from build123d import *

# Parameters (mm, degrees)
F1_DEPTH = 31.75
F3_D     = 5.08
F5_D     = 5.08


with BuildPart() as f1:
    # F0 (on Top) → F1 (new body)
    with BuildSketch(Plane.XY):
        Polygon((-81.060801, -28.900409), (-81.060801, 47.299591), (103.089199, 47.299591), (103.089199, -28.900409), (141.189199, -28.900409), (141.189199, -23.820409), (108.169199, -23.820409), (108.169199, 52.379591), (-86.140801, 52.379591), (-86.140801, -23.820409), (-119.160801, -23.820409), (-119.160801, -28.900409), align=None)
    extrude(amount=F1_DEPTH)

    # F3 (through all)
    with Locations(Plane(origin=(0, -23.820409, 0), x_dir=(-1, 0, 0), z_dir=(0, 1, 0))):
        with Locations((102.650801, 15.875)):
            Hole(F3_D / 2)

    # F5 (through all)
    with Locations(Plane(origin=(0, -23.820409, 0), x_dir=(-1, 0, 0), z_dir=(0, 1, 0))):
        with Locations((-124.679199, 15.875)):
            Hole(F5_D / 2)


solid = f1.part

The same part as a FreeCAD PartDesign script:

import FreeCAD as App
import Part
import Sketcher

V = App.Vector
Q = App.Units.Quantity

doc = App.newDocument("Part")
body = doc.addObject("PartDesign::Body", "Body")

# Sketch on XY plane
sketch1 = body.newObject("Sketcher::SketchObject", "Sketch")
sketch1.AttachmentSupport = (doc.getObject("XY_Plane"), [""])
sketch1.MapMode = "FlatFace"
sketch1.addGeometry(Part.LineSegment(V(-81.060801, -28.900409, 0), V(-81.060801, 47.299591, 0)), False)
sketch1.addGeometry(Part.LineSegment(V(-81.060801, 47.299591, 0), V(103.089199, 47.299591, 0)), False)
sketch1.addGeometry(Part.LineSegment(V(103.089199, 47.299591, 0), V(103.089199, -28.900409, 0)), False)
sketch1.addGeometry(Part.LineSegment(V(103.089199, -28.900409, 0), V(141.189199, -28.900409, 0)), False)
sketch1.addGeometry(Part.LineSegment(V(141.189199, -28.900409, 0), V(141.189199, -23.820409, 0)), False)
sketch1.addGeometry(Part.LineSegment(V(141.189199, -23.820409, 0), V(108.169199, -23.820409, 0)), False)
sketch1.addGeometry(Part.LineSegment(V(108.169199, -23.820409, 0), V(108.169199, 52.379591, 0)), False)
sketch1.addGeometry(Part.LineSegment(V(108.169199, 52.379591, 0), V(-86.140801, 52.379591, 0)), False)
sketch1.addGeometry(Part.LineSegment(V(-86.140801, 52.379591, 0), V(-86.140801, -23.820409, 0)), False)
sketch1.addGeometry(Part.LineSegment(V(-86.140801, -23.820409, 0), V(-119.160801, -23.820409, 0)), False)
sketch1.addGeometry(Part.LineSegment(V(-119.160801, -23.820409, 0), V(-119.160801, -28.900409, 0)), False)
sketch1.addGeometry(Part.LineSegment(V(-119.160801, -28.900409, 0), V(-81.060801, -28.900409, 0)), False)
sketch1.addConstraint(Sketcher.Constraint("Coincident", 0, 2, 1, 1))
sketch1.addConstraint(Sketcher.Constraint("Coincident", 1, 2, 2, 1))
sketch1.addConstraint(Sketcher.Constraint("Coincident", 2, 2, 3, 1))
sketch1.addConstraint(Sketcher.Constraint("Coincident", 3, 2, 4, 1))
sketch1.addConstraint(Sketcher.Constraint("Coincident", 4, 2, 5, 1))
sketch1.addConstraint(Sketcher.Constraint("Coincident", 5, 2, 6, 1))
sketch1.addConstraint(Sketcher.Constraint("Coincident", 6, 2, 7, 1))
sketch1.addConstraint(Sketcher.Constraint("Coincident", 7, 2, 8, 1))
sketch1.addConstraint(Sketcher.Constraint("Coincident", 8, 2, 9, 1))
sketch1.addConstraint(Sketcher.Constraint("Coincident", 9, 2, 10, 1))
sketch1.addConstraint(Sketcher.Constraint("Coincident", 10, 2, 11, 1))
sketch1.addConstraint(Sketcher.Constraint("Coincident", 11, 2, 0, 1))
sketch1.addConstraint(Sketcher.Constraint("Vertical", 0))
sketch1.addConstraint(Sketcher.Constraint("Horizontal", 1))
sketch1.addConstraint(Sketcher.Constraint("Vertical", 2))
sketch1.addConstraint(Sketcher.Constraint("Horizontal", 3))
sketch1.addConstraint(Sketcher.Constraint("Vertical", 4))
sketch1.addConstraint(Sketcher.Constraint("Horizontal", 5))
sketch1.addConstraint(Sketcher.Constraint("Vertical", 6))
sketch1.addConstraint(Sketcher.Constraint("Horizontal", 7))
sketch1.addConstraint(Sketcher.Constraint("Vertical", 8))
sketch1.addConstraint(Sketcher.Constraint("Horizontal", 9))
sketch1.addConstraint(Sketcher.Constraint("Vertical", 10))
sketch1.addConstraint(Sketcher.Constraint("Horizontal", 11))
sketch1.addConstraint(Sketcher.Constraint("Horizontal", 5, 2, 8, 2))
sketch1.addConstraint(Sketcher.Constraint("Horizontal", 3, 2, 10, 2))
sketch1.addConstraint(Sketcher.Constraint("Equal", 5, 9))
sketch1.addConstraint(Sketcher.Constraint("Equal", 3, 11))
sketch1.addConstraint(Sketcher.Constraint("Equal", 2, 6))
sketch1.addConstraint(Sketcher.Constraint("DistanceY", 0, 1, 0, 2, Q("3 in")))
sketch1.addConstraint(Sketcher.Constraint("DistanceX", 3, 1, 3, 2, Q("1.5 in")))
sketch1.addConstraint(Sketcher.Constraint("DistanceX", 5, 2, 5, 1, Q("1.3 in")))
sketch1.addConstraint(Sketcher.Constraint("DistanceY", 4, 1, 4, 2, Q("0.2 in")))
sketch1.addConstraint(Sketcher.Constraint("DistanceX", 1, 1, 1, 2, Q("7.25 in")))
sketch1.addConstraint(Sketcher.Constraint("DistanceX", 0, 2, -1, 1, Q("81.060801 mm")))
sketch1.addConstraint(Sketcher.Constraint("DistanceY", -1, 1, 0, 2, Q("47.299591 mm")))
pad1 = body.newObject("PartDesign::Pad", "Pad")
pad1.Profile = sketch1
pad1.Length = Q("1.25 in")

# Sketch on XZ plane
sketch2 = body.newObject("Sketcher::SketchObject", "Sketch001")
sketch2.AttachmentSupport = (doc.getObject("XZ_Plane"), [""])
sketch2.MapMode = "FlatFace"
sketch2.AttachmentOffset = App.Placement(V(0, 0, 23.820409), App.Rotation())
sketch2.addGeometry(Part.Circle(V(-102.650801, 15.875, 0), V(0, 0, 1), 2.54), False)
sketch2.addConstraint(Sketcher.Constraint("Diameter", 0, Q("0.2 in")))
sketch2.addConstraint(Sketcher.Constraint("DistanceY", -1, 1, 0, 3, Q("0.625 in")))
sketch2.addConstraint(Sketcher.Constraint("DistanceX", 0, 3, -1, 1, Q("102.650801 mm")))
doc.recompute()
hole = body.newObject("PartDesign::Hole", "Hole")
hole.Profile = sketch2
hole.ThreadType = "None"
hole.Diameter = Q("0.2 in")
hole.DepthType = "ThroughAll"
hole.Reversed = True

# Sketch on XZ plane
sketch3 = body.newObject("Sketcher::SketchObject", "Sketch002")
sketch3.AttachmentSupport = (doc.getObject("XZ_Plane"), [""])
sketch3.MapMode = "FlatFace"
sketch3.AttachmentOffset = App.Placement(V(0, 0, 23.820409), App.Rotation())
sketch3.addGeometry(Part.Circle(V(124.679199, 15.875, 0), V(0, 0, 1), 2.54), False)
sketch3.addConstraint(Sketcher.Constraint("Diameter", 0, Q("0.2 in")))
sketch3.addConstraint(Sketcher.Constraint("DistanceY", -1, 1, 0, 3, Q("0.625 in")))
sketch3.addConstraint(Sketcher.Constraint("DistanceX", -1, 1, 0, 3, Q("124.679199 mm")))
doc.recompute()
hole2 = body.newObject("PartDesign::Hole", "Hole001")
hole2.Profile = sketch3
hole2.ThreadType = "None"
hole2.Diameter = Q("0.2 in")
hole2.DepthType = "ThroughAll"
hole2.Reversed = True

doc.recompute()
